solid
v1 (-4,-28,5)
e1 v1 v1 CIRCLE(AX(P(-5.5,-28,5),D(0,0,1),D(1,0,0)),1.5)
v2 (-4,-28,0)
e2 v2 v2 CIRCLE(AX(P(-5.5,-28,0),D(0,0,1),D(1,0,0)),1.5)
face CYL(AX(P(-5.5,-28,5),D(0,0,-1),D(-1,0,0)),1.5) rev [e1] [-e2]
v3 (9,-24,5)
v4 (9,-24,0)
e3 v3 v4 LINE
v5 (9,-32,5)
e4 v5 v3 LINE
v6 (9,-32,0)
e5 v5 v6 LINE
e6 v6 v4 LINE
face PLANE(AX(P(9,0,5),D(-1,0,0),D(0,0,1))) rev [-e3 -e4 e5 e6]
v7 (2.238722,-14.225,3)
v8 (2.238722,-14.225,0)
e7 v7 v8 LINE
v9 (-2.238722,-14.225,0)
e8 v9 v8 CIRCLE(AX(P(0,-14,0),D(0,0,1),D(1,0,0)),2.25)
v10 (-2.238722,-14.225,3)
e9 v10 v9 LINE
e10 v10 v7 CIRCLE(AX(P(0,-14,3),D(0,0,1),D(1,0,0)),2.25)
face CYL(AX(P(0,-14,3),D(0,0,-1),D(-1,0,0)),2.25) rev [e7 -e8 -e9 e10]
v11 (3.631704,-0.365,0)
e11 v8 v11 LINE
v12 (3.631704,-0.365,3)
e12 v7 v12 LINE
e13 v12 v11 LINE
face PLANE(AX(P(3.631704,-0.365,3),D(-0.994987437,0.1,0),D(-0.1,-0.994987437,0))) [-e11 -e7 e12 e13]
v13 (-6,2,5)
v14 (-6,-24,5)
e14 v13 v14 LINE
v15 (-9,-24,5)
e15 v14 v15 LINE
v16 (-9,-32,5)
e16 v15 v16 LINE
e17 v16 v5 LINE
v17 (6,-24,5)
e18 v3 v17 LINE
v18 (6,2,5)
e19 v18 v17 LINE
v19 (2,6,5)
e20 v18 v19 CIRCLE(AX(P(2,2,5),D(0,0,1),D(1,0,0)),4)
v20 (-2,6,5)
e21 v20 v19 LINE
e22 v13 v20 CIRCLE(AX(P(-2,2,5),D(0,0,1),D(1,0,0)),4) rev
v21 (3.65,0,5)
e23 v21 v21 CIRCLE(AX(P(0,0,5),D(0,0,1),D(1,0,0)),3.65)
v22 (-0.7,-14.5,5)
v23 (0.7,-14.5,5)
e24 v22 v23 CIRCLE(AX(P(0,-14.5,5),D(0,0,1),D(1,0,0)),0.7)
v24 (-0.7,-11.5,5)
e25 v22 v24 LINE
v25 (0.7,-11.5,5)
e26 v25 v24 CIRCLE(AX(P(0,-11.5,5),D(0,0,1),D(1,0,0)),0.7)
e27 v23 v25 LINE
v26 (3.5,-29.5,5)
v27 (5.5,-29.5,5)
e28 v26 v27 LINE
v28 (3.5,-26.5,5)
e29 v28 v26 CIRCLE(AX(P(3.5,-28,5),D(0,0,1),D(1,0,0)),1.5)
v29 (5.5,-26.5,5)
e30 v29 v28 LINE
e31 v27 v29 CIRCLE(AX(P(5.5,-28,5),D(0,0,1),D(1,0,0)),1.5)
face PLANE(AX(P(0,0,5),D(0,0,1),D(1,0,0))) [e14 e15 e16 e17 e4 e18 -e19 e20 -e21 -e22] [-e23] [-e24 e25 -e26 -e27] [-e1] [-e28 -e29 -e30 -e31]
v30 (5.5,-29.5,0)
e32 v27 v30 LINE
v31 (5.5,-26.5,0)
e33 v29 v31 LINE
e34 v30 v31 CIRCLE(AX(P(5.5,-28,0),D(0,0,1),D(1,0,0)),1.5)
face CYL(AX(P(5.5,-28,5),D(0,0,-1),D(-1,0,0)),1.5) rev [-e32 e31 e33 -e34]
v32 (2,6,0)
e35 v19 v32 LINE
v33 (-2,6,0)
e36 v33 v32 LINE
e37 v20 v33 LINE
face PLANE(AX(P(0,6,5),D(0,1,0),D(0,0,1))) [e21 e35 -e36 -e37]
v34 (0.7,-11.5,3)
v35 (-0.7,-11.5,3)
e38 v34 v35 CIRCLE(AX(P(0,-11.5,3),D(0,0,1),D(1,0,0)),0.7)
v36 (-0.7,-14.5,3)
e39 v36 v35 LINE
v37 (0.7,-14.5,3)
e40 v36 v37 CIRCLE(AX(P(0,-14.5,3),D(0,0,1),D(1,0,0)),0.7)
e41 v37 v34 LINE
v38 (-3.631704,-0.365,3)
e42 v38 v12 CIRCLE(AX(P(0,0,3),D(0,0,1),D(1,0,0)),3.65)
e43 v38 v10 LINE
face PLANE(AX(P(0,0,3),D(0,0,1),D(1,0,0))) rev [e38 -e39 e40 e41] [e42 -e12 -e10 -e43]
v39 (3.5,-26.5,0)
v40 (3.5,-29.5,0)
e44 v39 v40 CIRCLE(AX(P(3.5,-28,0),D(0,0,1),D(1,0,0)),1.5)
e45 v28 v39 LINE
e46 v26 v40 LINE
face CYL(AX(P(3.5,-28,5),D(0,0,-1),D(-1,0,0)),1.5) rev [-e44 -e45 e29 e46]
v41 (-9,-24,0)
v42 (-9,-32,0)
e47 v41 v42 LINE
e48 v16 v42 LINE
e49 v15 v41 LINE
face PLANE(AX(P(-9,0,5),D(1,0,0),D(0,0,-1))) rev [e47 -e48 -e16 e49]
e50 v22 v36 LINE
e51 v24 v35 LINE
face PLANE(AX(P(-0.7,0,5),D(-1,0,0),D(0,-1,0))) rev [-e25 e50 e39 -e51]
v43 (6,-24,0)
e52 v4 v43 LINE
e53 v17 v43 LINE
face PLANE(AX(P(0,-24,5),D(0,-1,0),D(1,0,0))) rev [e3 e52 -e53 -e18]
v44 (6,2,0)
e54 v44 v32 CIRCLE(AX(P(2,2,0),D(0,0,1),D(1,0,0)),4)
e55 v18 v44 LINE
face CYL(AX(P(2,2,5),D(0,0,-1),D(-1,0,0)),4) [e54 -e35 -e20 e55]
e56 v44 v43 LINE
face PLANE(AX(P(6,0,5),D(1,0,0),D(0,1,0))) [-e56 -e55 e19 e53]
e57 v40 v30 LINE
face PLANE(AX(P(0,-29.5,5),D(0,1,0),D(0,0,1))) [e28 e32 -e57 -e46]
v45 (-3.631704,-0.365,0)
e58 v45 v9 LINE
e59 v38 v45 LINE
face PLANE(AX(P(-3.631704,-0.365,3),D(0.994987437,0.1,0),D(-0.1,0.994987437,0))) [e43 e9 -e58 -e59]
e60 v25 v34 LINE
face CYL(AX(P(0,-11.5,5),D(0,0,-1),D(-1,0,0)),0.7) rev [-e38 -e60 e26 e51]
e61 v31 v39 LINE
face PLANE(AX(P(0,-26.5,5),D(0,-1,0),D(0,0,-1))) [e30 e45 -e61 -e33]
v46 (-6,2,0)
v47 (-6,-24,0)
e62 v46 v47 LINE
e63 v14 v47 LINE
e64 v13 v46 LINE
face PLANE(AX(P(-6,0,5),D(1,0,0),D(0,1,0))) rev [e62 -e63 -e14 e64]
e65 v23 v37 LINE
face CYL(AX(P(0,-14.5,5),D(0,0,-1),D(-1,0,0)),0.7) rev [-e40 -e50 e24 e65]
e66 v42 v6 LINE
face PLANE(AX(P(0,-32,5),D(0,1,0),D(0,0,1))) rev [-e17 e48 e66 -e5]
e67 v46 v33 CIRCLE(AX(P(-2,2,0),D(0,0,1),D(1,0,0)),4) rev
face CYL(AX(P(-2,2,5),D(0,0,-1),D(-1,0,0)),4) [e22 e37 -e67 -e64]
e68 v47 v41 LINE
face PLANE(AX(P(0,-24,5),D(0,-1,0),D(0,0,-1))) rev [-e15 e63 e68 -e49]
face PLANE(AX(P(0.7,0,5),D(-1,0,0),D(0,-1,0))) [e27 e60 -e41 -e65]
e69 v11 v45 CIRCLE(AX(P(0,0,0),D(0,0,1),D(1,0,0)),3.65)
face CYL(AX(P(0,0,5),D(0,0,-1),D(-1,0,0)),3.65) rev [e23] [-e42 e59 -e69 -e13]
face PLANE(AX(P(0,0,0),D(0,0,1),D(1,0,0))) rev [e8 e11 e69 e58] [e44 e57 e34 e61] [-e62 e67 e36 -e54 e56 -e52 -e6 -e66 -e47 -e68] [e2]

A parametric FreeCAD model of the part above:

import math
import FreeCAD as App
import Part
import Sketcher
from FreeCAD import Vector

doc = App.newDocument("Part")
body = doc.addObject("PartDesign::Body", "Body")

sketch1 = body.newObject("Sketcher::SketchObject", "Sketch")
sketch1.AttachmentSupport = (doc.getObject("XY_Plane"), [""])
sketch1.MapMode = "FlatFace"
sketch1.addGeometry([
    Part.LineSegment(Vector(-6, 2, 0), Vector(-6, -24, 0)),
    Part.LineSegment(Vector(-6, -24, 0), Vector(-9, -24, 0)),
    Part.LineSegment(Vector(-9, -24, 0), Vector(-9, -32, 0)),
    Part.LineSegment(Vector(-9, -32, 0), Vector(9, -32, 0)),
    Part.LineSegment(Vector(9, -32, 0), Vector(9, -24, 0)),
    Part.LineSegment(Vector(9, -24, 0), Vector(6, -24, 0)),
    Part.LineSegment(Vector(6, -24, 0), Vector(6, 2, 0)),
    Part.ArcOfCircle(Part.Circle(Vector(2, 2, 0), Vector(0, 0, 1), 4), math.radians(0), math.radians(90)),
    Part.LineSegment(Vector(2, 6, 0), Vector(-2, 6, 0)),
    Part.ArcOfCircle(Part.Circle(Vector(-2, 2, 0), Vector(0, 0, 1), 4), math.radians(90), math.radians(180)),
    Part.Circle(Vector(-5.5, -28, 0), Vector(0, 0, 1), 1.5),
    Part.LineSegment(Vector(3.5, -26.5, 0), Vector(5.5, -26.5, 0)),
    Part.ArcOfCircle(Part.Circle(Vector(5.5, -28, 0), Vector(0, 0, 1), 1.5), math.radians(-90), math.radians(90)),
    Part.LineSegment(Vector(5.5, -29.5, 0), Vector(3.5, -29.5, 0)),
    Part.ArcOfCircle(Part.Circle(Vector(3.5, -28, 0), Vector(0, 0, 1), 1.5), math.radians(90), math.radians(270)),
    Part.ArcOfCircle(Part.Circle(Vector(0, -14.5, 0), Vector(0, 0, 1), 0.7), math.radians(180), math.radians(360)),
    Part.LineSegment(Vector(-0.7, -14.5, 0), Vector(-0.7, -11.5, 0)),
    Part.ArcOfCircle(Part.Circle(Vector(0, -11.5, 0), Vector(0, 0, 1), 0.7), math.radians(0), math.radians(180)),
    Part.LineSegment(Vector(0.7, -11.5, 0), Vector(0.7, -14.5, 0)),
    Part.Circle(Vector(0, 0, 0), Vector(0, 0, 1), 3.6),
], False)
sketch1.addConstraint([
    Sketcher.Constraint("Coincident", 0, 2, 1, 1),
    Sketcher.Constraint("Coincident", 1, 2, 2, 1),
    Sketcher.Constraint("Coincident", 2, 2, 3, 1),
    Sketcher.Constraint("Coincident", 3, 2, 4, 1),
    Sketcher.Constraint("Coincident", 4, 2, 5, 1),
    Sketcher.Constraint("Coincident", 5, 2, 6, 1),
    Sketcher.Constraint("Tangent", 6, 2, 7, 1),
    Sketcher.Constraint("Tangent", 7, 2, 8, 1),
    Sketcher.Constraint("Tangent", 8, 2, 9, 1),
    Sketcher.Constraint("Tangent", 9, 2, 0, 1),
    Sketcher.Constraint("Tangent", 11, 2, 12, 2),
    Sketcher.Constraint("Tangent", 12, 1, 13, 1),
    Sketcher.Constraint("Tangent", 13, 2, 14, 2),
    Sketcher.Constraint("Tangent", 14, 1, 11, 1),
    Sketcher.Constraint("Tangent", 15, 1, 16, 1),
    Sketcher.Constraint("Tangent", 16, 2, 17, 2),
    Sketcher.Constraint("Tangent", 17, 1, 18, 1),
    Sketcher.Constraint("Tangent", 18, 2, 15, 2),
    Sketcher.Constraint("Vertical", 0),
    Sketcher.Constraint("Horizontal", 1),
    Sketcher.Constraint("Vertical", 2),
    Sketcher.Constraint("Horizontal", 3),
    Sketcher.Constraint("Vertical", 4),
    Sketcher.Constraint("Horizontal", 5),
    Sketcher.Constraint("Vertical", 6),
    Sketcher.Constraint("Horizontal", 8),
    Sketcher.Constraint("Horizontal", 11),
    Sketcher.Constraint("Horizontal", 13),
    Sketcher.Constraint("Vertical", 16),
    Sketcher.Constraint("Vertical", 18),
    Sketcher.Constraint("Coincident", 19, 3, -1, 1),
    Sketcher.Constraint("Equal", 7, 9),
    Sketcher.Constraint("Equal", 10, 12),
    Sketcher.Constraint("Symmetric", 10, 3, 12, 3, -2),
    Sketcher.Constraint("Symmetric", 1, 2, 4, 2, -2),
    Sketcher.Constraint("PointOnObject", 15, 3, -2),
    Sketcher.Constraint("Equal", 1, 5),
    Sketcher.Constraint("Equal", 5, 16),
    Sketcher.Constraint("Diameter", 10, 3.0),
    Sketcher.Constraint("Radius", 7, 4.0),
    Sketcher.Constraint("Diameter", 19, 7.3),
    Sketcher.Constraint("Radius", 15, 0.7),
    Sketcher.Constraint("DistanceX", 1, 2, 1, 1, 3.0),
    Sketcher.Constraint("DistanceX", 3, 1, 3, 2, 18.0),
    Sketcher.Constraint("DistanceX", 11, 1, 11, 2, 2.0),
    Sketcher.Constraint("DistanceY", 0, 2, 0, 1, 26.0),
    Sketcher.Constraint("DistanceY", 2, 2, 2, 1, 8.0),
    Sketcher.Constraint("DistanceY", -1, 1, 7, 3, 2.0),
    Sketcher.Constraint("DistanceY", 10, 3, -1, 1, 28.0),
    Sketcher.Constraint("DistanceX", 10, 3, 12, 3, 11.0),
    Sketcher.Constraint("DistanceY", 15, 3, -1, 1, 14.5),
])
pad1 = body.newObject("PartDesign::Pad", "Pad")
pad1.Profile = sketch1
pad1.Length = 5

sketch2 = body.newObject("Sketcher::SketchObject", "Sketch001")
sketch2.AttachmentSupport = (doc.getObject("XY_Plane"), [""])
sketch2.MapMode = "FlatFace"
sketch2.addGeometry([
    Part.ArcOfCircle(Part.Circle(Vector(0, -14, 0), Vector(0, 0, 1), 2.2), math.radians(-174), math.radians(-6)),
    Part.LineSegment(Vector(2.2, -14.2, 0), Vector(3.6, -0.4, 0)),
    Part.ArcOfCircle(Part.Circle(Vector(0, 0, 0), Vector(0, 0, 1), 3.6), math.radians(-174), math.radians(-6)),
    Part.LineSegment(Vector(-3.6, -0.4, 0), Vector(-2.2, -14.2, 0)),
    Part.LineSegment(Vector(0.7, -11.5, 0), Vector(0.7, -14.5, 0)),
    Part.ArcOfCircle(Part.Circle(Vector(0, -14.5, 0), Vector(0, 0, 1), 0.7), math.radians(180), math.radians(360)),
    Part.LineSegment(Vector(-0.7, -14.5, 0), Vector(-0.7, -11.5, 0)),
    Part.ArcOfCircle(Part.Circle(Vector(0, -11.5, 0), Vector(0, 0, 1), 0.7), math.radians(0), math.radians(180)),
], False)
sketch2.addConstraint([
    Sketcher.Constraint("Tangent", 0, 2, 1, 1),
    Sketcher.Constraint("Tangent", 1, 2, 2, 2),
    Sketcher.Constraint("Tangent", 2, 1, 3, 1),
    Sketcher.Constraint("Tangent", 3, 2, 0, 1),
    Sketcher.Constraint("Tangent", 4, 2, 5, 2),
    Sketcher.Constraint("Tangent", 5, 1, 6, 1),
    Sketcher.Constraint("Tangent", 6, 2, 7, 2),
    Sketcher.Constraint("Tangent", 7, 1, 4, 1),
    Sketcher.Constraint("Vertical", 4),
    Sketcher.Constraint("Vertical", 6),
    Sketcher.Constraint("Coincident", 2, 3, -1, 1),
    Sketcher.Constraint("PointOnObject", 0, 3, -2),
    Sketcher.Constraint("PointOnObject", 5, 3, -2),
    Sketcher.Constraint("Radius", 5, 0.7),
    Sketcher.Constraint("DistanceY", 4, 2, 4, 1, 3.0),
    Sketcher.Constraint("Radius", 0, 2.25),
    Sketcher.Constraint("Radius", 2, 3.65),
    Sketcher.Constraint("DistanceY", 0, 3, -1, 1, 14.0),
    Sketcher.Constraint("DistanceY", 5, 3, -1, 1, 14.5),
])
pocket1 = body.newObject("PartDesign::Pocket", "Pocket")
pocket1.Profile = sketch2
pocket1.Length = 3
pocket1.Reversed = True

doc.recompute()
